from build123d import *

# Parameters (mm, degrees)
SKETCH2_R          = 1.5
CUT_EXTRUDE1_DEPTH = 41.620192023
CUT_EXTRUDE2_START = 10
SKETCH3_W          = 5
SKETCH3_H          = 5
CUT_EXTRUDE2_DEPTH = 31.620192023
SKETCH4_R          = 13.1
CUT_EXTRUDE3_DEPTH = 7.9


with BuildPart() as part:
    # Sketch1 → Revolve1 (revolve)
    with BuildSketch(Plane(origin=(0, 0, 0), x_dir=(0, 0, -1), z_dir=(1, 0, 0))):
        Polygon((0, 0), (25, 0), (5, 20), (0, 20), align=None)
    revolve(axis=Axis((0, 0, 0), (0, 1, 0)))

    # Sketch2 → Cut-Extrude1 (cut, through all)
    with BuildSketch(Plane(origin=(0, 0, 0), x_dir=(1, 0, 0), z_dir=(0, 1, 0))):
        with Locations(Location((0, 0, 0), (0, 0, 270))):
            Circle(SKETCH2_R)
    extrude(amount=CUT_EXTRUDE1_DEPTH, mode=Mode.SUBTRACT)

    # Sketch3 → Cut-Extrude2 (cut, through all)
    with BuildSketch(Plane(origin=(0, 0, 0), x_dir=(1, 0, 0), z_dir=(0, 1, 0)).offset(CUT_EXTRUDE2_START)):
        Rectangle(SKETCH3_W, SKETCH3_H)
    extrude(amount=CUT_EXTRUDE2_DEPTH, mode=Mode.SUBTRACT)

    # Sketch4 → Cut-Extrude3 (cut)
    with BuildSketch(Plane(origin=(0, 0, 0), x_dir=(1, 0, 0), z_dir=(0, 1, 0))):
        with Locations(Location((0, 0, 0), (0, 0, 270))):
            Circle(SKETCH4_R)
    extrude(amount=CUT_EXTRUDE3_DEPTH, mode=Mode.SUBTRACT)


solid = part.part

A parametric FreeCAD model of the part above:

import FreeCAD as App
import Part
import Sketcher
from FreeCAD import Vector
Q = App.Units.Quantity


def add_polygon(sketch, points):
    """Adds a closed chain of lines whose ends are joined by coincident constraints."""
    first, n = sketch.GeometryCount, len(points)
    for a, b in zip(points, points[1:] + points[:1]):
        sketch.addGeometry(Part.LineSegment(App.Vector(*a, 0), App.Vector(*b, 0)), False)
    for i in range(n):
        sketch.addConstraint(Sketcher.Constraint("Coincident", first + i, 2, first + (i + 1) % n, 1))

doc = App.newDocument("Part")
body = doc.addObject("PartDesign::Body", "Body")

# Sketch on YZ plane
sketch1 = body.newObject("Sketcher::SketchObject", "Sketch")
sketch1.AttachmentSupport = (doc.getObject("YZ_Plane"), [""])
sketch1.MapMode = "FlatFace"
add_polygon(sketch1, [(0, 0), (0, -25), (20, -5), (20, 0)])  # lines 0-3
sketch1.addConstraint(Sketcher.Constraint("Vertical", 0))
sketch1.addConstraint(Sketcher.Constraint("Vertical", 2))
sketch1.addConstraint(Sketcher.Constraint("Horizontal", 3))
sketch1.addConstraint(Sketcher.Constraint("Coincident", 3, 2, -1, 1))
sketch1.addConstraint(Sketcher.Constraint("DistanceX", 3, 2, 3, 1, Q("20 mm")))
sketch1.addConstraint(Sketcher.Constraint("DistanceY", 0, 2, 0, 1, Q("25 mm")))
sketch1.addConstraint(Sketcher.Constraint("DistanceY", 2, 1, 2, 2, Q("5 mm")))
revolution = body.newObject("PartDesign::Revolution", "Revolution")
revolution.Profile = sketch1
revolution.ReferenceAxis = (sketch1, ["H_Axis"])
revolution.Angle = 360

# Sketch on XZ plane
sketch2 = body.newObject("Sketcher::SketchObject", "Sketch001")
sketch2.AttachmentSupport = (doc.getObject("XZ_Plane"), [""])
sketch2.MapMode = "FlatFace"
sketch2.addGeometry(Part.Circle(Vector(0, 0, 0), Vector(0, 0, 1), 1.5), False)
sketch2.addConstraint(Sketcher.Constraint("Coincident", 0, 3, -1, 1))
sketch2.addConstraint(Sketcher.Constraint("Diameter", 0, Q("3 mm")))
pocket1 = body.newObject("PartDesign::Pocket", "Pocket")
pocket1.Profile = sketch2
pocket1.Type = "ThroughAll"

# Sketch on XZ plane
sketch3 = body.newObject("Sketcher::SketchObject", "Sketch002")
sketch3.AttachmentSupport = (doc.getObject("XZ_Plane"), [""])
sketch3.MapMode = "FlatFace"
sketch3.AttachmentOffset = App.Placement(Vector(0, 0, -10), App.Rotation())
add_polygon(sketch3, [(-2, -2), (-2, 2), (2, 2), (2, -2)])  # lines 0-3
sketch3.addConstraint(Sketcher.Constraint("Vertical", 0))
sketch3.addConstraint(Sketcher.Constraint("Horizontal", 1))
sketch3.addConstraint(Sketcher.Constraint("Vertical", 2))
sketch3.addConstraint(Sketcher.Constraint("Horizontal", 3))
sketch3.addConstraint(Sketcher.Constraint("Symmetric", 0, 2, 2, 2, -1, 1))
sketch3.addConstraint(Sketcher.Constraint("Equal", 3, 0))
sketch3.addConstraint(Sketcher.Constraint("DistanceX", 1, 1, 1, 2, Q("5 mm")))
pocket2 = body.newObject("PartDesign::Pocket", "Pocket001")
pocket2.Profile = sketch3
pocket2.Type = "ThroughAll"

# Sketch on XZ plane
sketch4 = body.newObject("Sketcher::SketchObject", "Sketch003")
sketch4.AttachmentSupport = (doc.getObject("XZ_Plane"), [""])
sketch4.MapMode = "FlatFace"
sketch4.addGeometry(Part.Circle(Vector(0, 0, 0), Vector(0, 0, 1), 13), False)
sketch4.addConstraint(Sketcher.Constraint("Coincident", 0, 3, -1, 1))
sketch4.addConstraint(Sketcher.Constraint("Diameter", 0, Q("26.2 mm")))
pocket3 = body.newObject("PartDesign::Pocket", "Pocket002")
pocket3.Profile = sketch4
pocket3.Length = 7.9

doc.recompute()
